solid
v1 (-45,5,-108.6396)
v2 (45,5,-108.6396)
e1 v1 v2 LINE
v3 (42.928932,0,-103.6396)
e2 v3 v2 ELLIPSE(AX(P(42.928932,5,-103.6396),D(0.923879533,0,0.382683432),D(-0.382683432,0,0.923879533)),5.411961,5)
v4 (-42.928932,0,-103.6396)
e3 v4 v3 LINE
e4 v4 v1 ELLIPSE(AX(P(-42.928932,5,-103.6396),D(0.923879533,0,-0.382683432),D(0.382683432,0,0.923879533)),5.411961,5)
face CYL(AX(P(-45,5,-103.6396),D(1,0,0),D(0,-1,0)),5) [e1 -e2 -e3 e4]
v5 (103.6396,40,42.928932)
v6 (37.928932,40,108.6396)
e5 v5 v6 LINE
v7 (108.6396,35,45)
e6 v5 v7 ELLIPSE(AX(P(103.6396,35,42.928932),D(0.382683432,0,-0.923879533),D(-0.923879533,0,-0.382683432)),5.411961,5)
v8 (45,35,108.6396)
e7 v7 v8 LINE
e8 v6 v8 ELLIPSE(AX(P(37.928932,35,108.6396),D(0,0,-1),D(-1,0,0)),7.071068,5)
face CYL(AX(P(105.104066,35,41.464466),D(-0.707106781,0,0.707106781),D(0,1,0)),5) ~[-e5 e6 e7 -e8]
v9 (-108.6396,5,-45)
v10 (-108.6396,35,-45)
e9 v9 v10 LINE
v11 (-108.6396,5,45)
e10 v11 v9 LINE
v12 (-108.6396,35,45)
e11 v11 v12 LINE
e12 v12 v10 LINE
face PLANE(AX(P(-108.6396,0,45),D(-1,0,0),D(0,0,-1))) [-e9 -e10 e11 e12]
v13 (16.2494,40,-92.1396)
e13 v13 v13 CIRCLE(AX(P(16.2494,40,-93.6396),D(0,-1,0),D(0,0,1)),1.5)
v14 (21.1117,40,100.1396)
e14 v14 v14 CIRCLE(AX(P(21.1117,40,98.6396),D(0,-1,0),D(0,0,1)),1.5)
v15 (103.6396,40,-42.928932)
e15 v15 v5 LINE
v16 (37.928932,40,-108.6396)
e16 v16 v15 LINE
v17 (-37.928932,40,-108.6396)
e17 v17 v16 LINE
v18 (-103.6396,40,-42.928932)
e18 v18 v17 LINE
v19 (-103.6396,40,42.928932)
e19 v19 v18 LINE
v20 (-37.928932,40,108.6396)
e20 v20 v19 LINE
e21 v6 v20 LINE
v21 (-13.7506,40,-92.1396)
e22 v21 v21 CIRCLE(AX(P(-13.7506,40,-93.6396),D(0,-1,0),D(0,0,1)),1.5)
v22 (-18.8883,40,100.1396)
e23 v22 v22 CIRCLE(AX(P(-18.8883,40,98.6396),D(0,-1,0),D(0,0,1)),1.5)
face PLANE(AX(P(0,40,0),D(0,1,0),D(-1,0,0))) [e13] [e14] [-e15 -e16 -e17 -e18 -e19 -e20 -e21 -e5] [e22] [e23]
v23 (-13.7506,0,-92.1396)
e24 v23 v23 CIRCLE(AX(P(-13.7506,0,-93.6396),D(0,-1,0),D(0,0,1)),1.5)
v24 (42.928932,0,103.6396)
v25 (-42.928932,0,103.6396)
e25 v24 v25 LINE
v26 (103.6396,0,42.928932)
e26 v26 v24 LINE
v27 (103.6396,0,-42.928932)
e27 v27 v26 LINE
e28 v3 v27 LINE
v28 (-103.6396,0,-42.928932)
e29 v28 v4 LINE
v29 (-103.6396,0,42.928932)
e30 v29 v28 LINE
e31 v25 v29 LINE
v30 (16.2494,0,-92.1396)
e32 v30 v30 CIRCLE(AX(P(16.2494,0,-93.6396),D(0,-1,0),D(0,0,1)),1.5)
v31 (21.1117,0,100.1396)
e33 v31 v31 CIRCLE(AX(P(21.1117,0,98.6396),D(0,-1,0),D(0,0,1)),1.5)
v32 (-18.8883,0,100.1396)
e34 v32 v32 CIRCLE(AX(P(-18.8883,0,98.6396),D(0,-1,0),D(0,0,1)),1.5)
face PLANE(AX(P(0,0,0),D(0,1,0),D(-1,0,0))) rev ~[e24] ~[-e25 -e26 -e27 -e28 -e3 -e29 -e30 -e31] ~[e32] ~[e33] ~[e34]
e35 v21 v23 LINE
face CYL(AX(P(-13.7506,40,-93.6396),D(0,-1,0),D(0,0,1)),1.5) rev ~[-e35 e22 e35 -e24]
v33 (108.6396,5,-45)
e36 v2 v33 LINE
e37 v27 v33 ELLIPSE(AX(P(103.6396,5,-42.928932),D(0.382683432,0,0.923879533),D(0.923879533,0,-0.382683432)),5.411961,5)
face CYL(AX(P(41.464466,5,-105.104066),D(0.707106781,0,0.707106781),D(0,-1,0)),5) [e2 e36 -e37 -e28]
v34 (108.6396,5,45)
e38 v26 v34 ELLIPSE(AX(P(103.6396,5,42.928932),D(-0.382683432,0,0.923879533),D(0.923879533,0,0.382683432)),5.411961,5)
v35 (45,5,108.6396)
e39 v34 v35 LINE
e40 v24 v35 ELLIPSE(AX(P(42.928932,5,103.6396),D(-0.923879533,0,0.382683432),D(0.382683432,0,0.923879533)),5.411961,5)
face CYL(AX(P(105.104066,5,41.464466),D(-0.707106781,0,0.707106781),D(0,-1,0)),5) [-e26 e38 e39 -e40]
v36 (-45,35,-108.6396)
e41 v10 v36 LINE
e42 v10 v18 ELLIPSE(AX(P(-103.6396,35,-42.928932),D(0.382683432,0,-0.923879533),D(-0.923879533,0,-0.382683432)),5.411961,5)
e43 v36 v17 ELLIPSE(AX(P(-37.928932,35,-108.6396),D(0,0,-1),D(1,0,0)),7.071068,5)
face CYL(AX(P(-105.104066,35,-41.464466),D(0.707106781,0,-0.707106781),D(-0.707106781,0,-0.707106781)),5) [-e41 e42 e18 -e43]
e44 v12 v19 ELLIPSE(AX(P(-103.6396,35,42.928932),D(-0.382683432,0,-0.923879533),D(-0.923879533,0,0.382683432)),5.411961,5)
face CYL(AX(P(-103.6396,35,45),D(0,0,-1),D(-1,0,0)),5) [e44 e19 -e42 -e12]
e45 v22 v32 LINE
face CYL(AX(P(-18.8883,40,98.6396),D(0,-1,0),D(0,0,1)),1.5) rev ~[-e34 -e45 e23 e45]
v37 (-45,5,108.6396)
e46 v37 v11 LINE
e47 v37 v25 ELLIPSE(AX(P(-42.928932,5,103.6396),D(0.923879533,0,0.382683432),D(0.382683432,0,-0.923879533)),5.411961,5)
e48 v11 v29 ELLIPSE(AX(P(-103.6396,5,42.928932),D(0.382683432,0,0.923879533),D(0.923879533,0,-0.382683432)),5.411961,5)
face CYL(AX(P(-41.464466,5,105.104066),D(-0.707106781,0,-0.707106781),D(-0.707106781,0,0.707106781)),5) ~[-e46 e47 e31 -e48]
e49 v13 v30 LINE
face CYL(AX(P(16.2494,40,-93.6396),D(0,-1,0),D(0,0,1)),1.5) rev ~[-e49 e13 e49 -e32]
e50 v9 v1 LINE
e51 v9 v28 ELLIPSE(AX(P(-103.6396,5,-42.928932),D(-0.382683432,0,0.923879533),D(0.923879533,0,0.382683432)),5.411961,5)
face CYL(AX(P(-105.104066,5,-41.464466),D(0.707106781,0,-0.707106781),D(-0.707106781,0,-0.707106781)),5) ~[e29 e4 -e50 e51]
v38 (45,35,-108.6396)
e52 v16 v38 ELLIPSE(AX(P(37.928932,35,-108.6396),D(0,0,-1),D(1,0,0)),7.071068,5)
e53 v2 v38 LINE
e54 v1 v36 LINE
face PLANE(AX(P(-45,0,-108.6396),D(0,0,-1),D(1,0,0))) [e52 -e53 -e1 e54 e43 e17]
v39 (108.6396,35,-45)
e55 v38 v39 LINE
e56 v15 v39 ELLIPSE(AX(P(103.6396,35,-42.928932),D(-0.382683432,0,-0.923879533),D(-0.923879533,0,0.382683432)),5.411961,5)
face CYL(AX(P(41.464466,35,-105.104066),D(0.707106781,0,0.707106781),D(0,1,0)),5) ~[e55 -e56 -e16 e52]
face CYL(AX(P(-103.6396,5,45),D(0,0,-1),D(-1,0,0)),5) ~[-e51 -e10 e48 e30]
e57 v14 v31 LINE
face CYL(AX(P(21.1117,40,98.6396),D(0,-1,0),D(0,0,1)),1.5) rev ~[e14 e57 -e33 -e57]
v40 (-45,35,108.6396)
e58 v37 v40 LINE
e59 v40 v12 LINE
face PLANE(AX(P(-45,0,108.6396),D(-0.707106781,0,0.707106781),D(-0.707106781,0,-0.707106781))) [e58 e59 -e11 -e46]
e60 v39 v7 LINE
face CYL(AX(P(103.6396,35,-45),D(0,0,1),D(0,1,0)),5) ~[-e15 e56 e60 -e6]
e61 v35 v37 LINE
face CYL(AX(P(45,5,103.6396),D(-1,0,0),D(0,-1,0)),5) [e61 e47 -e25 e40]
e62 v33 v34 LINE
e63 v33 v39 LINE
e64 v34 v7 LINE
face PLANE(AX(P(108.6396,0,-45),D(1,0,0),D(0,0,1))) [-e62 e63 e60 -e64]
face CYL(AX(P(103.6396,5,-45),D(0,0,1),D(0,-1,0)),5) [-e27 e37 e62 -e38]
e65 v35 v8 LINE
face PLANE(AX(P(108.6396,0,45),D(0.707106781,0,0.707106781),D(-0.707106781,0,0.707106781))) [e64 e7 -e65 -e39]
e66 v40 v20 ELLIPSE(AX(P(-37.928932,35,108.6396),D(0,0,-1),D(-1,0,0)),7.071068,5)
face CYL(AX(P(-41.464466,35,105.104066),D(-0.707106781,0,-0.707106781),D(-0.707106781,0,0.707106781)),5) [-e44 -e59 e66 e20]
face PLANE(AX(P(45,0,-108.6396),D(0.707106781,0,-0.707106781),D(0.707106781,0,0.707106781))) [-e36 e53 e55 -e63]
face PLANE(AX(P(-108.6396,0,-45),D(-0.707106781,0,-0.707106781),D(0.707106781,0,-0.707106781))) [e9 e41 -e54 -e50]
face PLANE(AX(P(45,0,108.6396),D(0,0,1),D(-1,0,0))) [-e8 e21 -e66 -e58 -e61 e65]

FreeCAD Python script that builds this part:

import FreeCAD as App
import Part
import Sketcher

V = App.Vector
Q = App.Units.Quantity


def edges_at(feature, points):
    """Names of the edges that pass closest to the given points."""
    edges = feature.Shape.Edges
    near = lambda p: min(range(len(edges)), key=lambda i: edges[i].distToShape(Part.Vertex(*p))[0])
    return sorted({f"Edge{near(p) + 1}" for p in points})


def add_polygon(sketch, points):
    """Adds a closed chain of lines whose ends are joined by coincident constraints."""
    first, n = sketch.GeometryCount, len(points)
    for a, b in zip(points, points[1:] + points[:1]):
        sketch.addGeometry(Part.LineSegment(App.Vector(*a, 0), App.Vector(*b, 0)), False)
    for i in range(n):
        sketch.addConstraint(Sketcher.Constraint("Coincident", first + i, 2, first + (i + 1) % n, 1))

doc = App.newDocument("Part")
body = doc.addObject("PartDesign::Body", "Body")

# Sketch on XZ plane
sketch1 = doc.addObject("Sketcher::SketchObject", "Sketch")
body.addObject(sketch1)
sketch1.AttachmentSupport = (doc.XZ_Plane, [""])
sketch1.MapMode = "FlatFace"
add_polygon(sketch1, [(-109, -45), (-109, 45), (-45, 109), (45, 109), (109, 45), (109, -45), (45, -109), (-45, -109)])  # lines 0-7
sketch1.addConstraint([
    Sketcher.Constraint("Vertical", 0),
    Sketcher.Constraint("Horizontal", 2),
    Sketcher.Constraint("Vertical", 4),
    Sketcher.Constraint("Horizontal", 6),
    Sketcher.Constraint("Symmetric", 0, 2, 4, 2, -1, 1),
    Sketcher.Constraint("Symmetric", 1, 2, 5, 2, -1, 1),
    Sketcher.Constraint("Perpendicular", 1, 3),
    Sketcher.Constraint("Perpendicular", 5, 7),
    Sketcher.Constraint("Horizontal", 0, 2, 3, 2),
    Sketcher.Constraint("Horizontal", 4, 2, 7, 2),
    Sketcher.Constraint("Vertical", 2, 2, 5, 2),
    Sketcher.Constraint("Equal", 6, 0),
    Sketcher.Constraint("DistanceX", 2, 1, 2, 2, Q("90 mm")),
    Sketcher.Constraint("Distance", 1, Q("90 mm")),
])
pad1 = doc.addObject("PartDesign::Pad", "Pad")
body.addObject(pad1)
pad1.Profile = sketch1
pad1.Length = 40
pad1.Reversed = True

# Sketch on XZ plane
sketch2 = doc.addObject("Sketcher::SketchObject", "Sketch001")
body.addObject(sketch2)
sketch2.AttachmentSupport = (doc.XZ_Plane, [""])
sketch2.MapMode = "FlatFace"
sketch2.AttachmentOffset = App.Placement(V(0, 0, -40), App.Rotation())
sketch2.addGeometry([
    Part.Circle(V(-18.9, 98.6, 0), V(0, 0, 1), 1.5),
    Part.Circle(V(21.1, 98.6, 0), V(0, 0, 1), 1.5),
    Part.Circle(V(-13.8, -93.6, 0), V(0, 0, 1), 1.5),
    Part.Circle(V(16.2, -93.6, 0), V(0, 0, 1), 1.5),
], False)
sketch2.addConstraint([
    Sketcher.Constraint("Equal", 0, 1),
    Sketcher.Constraint("Equal", 1, 2),
    Sketcher.Constraint("Equal", 2, 3),
    Sketcher.Constraint("Horizontal", 0, 3, 1, 3),
    Sketcher.Constraint("Horizontal", 2, 3, 3, 3),
    Sketcher.Constraint("Diameter", 0, Q("3 mm")),
    Sketcher.Constraint("DistanceX", 0, 3, 1, 3, Q("40 mm")),
    Sketcher.Constraint("DistanceX", 2, 3, 3, 3, Q("30 mm")),
    Sketcher.Constraint("DistanceX", 0, 3, -1, 1, Q("18.8883 mm")),
    Sketcher.Constraint("DistanceY", -1, 1, 0, 3, Q("98.6396 mm")),
    Sketcher.Constraint("DistanceX", 2, 3, -1, 1, Q("13.7506 mm")),
    Sketcher.Constraint("DistanceY", 2, 3, -1, 1, Q("93.6396 mm")),
])
doc.recompute()
hole = doc.addObject("PartDesign::Hole", "Hole")
body.addObject(hole)
hole.Profile = sketch2
hole.ThreadType = "None"
hole.Diameter = 3
hole.DepthType = "ThroughAll"
hole.Reversed = True
doc.recompute()

fillet = doc.addObject("PartDesign::Fillet", "Fillet")
body.addObject(fillet)
fillet.Base = (hole, edges_at(hole, [
    (-76.82, 40, 76.82),
    (-108.64, 40, 0),
    (-76.82, 40, -76.82),
    (76.82, 40, 76.82),
    (108.64, 40, 0),
    (76.82, 40, -76.82),
    (76.82, 0, -76.82),
    (108.64, 0, 0),
    (76.82, 0, 76.82),
    (0, 0, -108.64),
    (-76.82, 0, -76.82),
    (-108.64, 0, 0),
    (-76.82, 0, 76.82),
    (0, 0, 108.64),
]))
fillet.Radius = 5

doc.recompute()
